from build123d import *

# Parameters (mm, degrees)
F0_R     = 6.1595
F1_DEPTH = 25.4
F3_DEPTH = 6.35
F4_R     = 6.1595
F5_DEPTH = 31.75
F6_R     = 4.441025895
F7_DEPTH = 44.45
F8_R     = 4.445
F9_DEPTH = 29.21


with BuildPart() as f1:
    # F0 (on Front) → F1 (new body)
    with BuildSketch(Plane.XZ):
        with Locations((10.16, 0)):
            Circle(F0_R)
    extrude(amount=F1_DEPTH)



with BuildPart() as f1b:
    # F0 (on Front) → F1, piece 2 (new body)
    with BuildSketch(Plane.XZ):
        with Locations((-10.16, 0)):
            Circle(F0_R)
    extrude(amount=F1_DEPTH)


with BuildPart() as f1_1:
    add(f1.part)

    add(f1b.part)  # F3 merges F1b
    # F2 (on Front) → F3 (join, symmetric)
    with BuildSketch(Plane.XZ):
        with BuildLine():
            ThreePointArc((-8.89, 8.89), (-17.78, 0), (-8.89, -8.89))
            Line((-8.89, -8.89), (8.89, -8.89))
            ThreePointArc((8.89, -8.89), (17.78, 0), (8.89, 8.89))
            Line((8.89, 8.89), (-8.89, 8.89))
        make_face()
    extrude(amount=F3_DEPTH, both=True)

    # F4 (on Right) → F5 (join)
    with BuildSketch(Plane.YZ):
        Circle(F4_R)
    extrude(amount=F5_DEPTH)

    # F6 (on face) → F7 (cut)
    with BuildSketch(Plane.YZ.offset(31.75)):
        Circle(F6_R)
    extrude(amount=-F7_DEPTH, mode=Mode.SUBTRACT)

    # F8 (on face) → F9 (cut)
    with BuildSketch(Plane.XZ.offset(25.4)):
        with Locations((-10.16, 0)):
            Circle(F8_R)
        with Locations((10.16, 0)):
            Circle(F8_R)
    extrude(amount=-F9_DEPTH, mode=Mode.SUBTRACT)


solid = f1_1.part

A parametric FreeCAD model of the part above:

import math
import FreeCAD as App
import Part
import Sketcher

V = App.Vector
Q = App.Units.Quantity

doc = App.newDocument("Part")
params = doc.addObject("Spreadsheet::Sheet", "Params")
for row, (alias, value) in enumerate([
    ("sketch1_diameter", "0.485 in"),
    ("pad1_length", "1 in"),
    ("sketch2_diameter", "0.485 in"),
    ("pad2_length", "1 in"),
    ("sketch3_radius", "0.35 in"),
    ("sketch3_width", "0.7 in"),
    ("pad3_length", "0.5 in"),
    ("sketch4_diameter", "0.485 in"),
    ("pad4_length", "1.25 in"),
    ("pocket1_length", "1.75 in"),
    ("sketch6_diameter", "0.35 in"),
    ("pocket2_length", "1.15 in"),
], start=1):
    params.set(f"A{row}", alias)
    params.set(f"B{row}", "=" + value)
    params.setAlias(f"B{row}", alias)

body = doc.addObject("PartDesign::Body", "Body")

sketch1 = body.newObject("Sketcher::SketchObject", "Sketch")
sketch1.AttachmentSupport = (doc.getObject("XZ_Plane"), [""])
sketch1.MapMode = "FlatFace"
sketch1.addGeometry(Part.Circle(V(10, 0, 0), V(0, 0, 1), 6), False)
sketch1.addConstraint([
    Sketcher.Constraint("PointOnObject", 0, 3, -1),
    Sketcher.Constraint("Diameter", 0, Q("0.485 in")),
    Sketcher.Constraint("DistanceX", -1, 1, 0, 3, Q("0.4 in")),
])
sketch1.setExpression("Constraints[1]", "Params.sketch1_diameter")
pad1 = body.newObject("PartDesign::Pad", "Pad")
pad1.Profile = sketch1
pad1.setExpression("Length", "Params.pad1_length")
body2 = doc.addObject("PartDesign::Body", "Body001")

sketch2 = body2.newObject("Sketcher::SketchObject", "Sketch001")
sketch2.AttachmentSupport = (doc.getObject("XZ_Plane001"), [""])
sketch2.MapMode = "FlatFace"
sketch2.addGeometry(Part.Circle(V(-10, 0, 0), V(0, 0, 1), 6), False)
sketch2.addConstraint([
    Sketcher.Constraint("PointOnObject", 0, 3, -1),
    Sketcher.Constraint("Diameter", 0, Q("0.485 in")),
    Sketcher.Constraint("DistanceX", 0, 3, -1, 1, Q("0.4 in")),
])
sketch2.setExpression("Constraints[1]", "Params.sketch2_diameter")
pad2 = body2.newObject("PartDesign::Pad", "Pad001")
pad2.Profile = sketch2
pad2.setExpression("Length", "Params.pad2_length")
body.AllowCompound = True
doc.recompute()

boolean = body.newObject("PartDesign::Boolean", "Boolean")
boolean.Type = "Fuse"
boolean.addObjects([body2])

sketch3 = body.newObject("Sketcher::SketchObject", "Sketch002")
sketch3.AttachmentSupport = (doc.getObject("XZ_Plane"), [""])
sketch3.MapMode = "FlatFace"
sketch3.addGeometry([
    Part.ArcOfCircle(Part.Circle(V(-9, 0, 0), V(0, 0, 1), 9), math.radians(90), math.radians(270)),
    Part.LineSegment(V(-9, -9, 0), V(9, -9, 0)),
    Part.ArcOfCircle(Part.Circle(V(9, 0, 0), V(0, 0, 1), 9), math.radians(-90), math.radians(90)),
    Part.LineSegment(V(9, 9, 0), V(-9, 9, 0)),
], False)
sketch3.addConstraint([
    Sketcher.Constraint("Tangent", 0, 2, 1, 1),
    Sketcher.Constraint("Tangent", 1, 2, 2, 1),
    Sketcher.Constraint("Tangent", 2, 2, 3, 1),
    Sketcher.Constraint("Tangent", 3, 2, 0, 1),
    Sketcher.Constraint("Horizontal", 1),
    Sketcher.Constraint("Horizontal", 3),
    Sketcher.Constraint("Symmetric", 0, 3, 2, 3, -1, 1),
    Sketcher.Constraint("Radius", 0, Q("0.35 in")),
    Sketcher.Constraint("DistanceX", 1, 1, 1, 2, Q("0.7 in")),
])
sketch3.setExpression("Constraints[7]", "Params.sketch3_radius")
sketch3.setExpression("Constraints[8]", "Params.sketch3_width")
pad3 = body.newObject("PartDesign::Pad", "Pad002")
pad3.Profile = sketch3
pad3.setExpression("Length", "Params.pad3_length")
pad3.Midplane = True

sketch4 = body.newObject("Sketcher::SketchObject", "Sketch003")
sketch4.AttachmentSupport = (doc.getObject("YZ_Plane"), [""])
sketch4.MapMode = "FlatFace"
sketch4.addGeometry(Part.Circle(V(0, 0, 0), V(0, 0, 1), 6), False)
sketch4.addConstraint([
    Sketcher.Constraint("Coincident", 0, 3, -1, 1),
    Sketcher.Constraint("Diameter", 0, Q("0.485 in")),
])
sketch4.setExpression("Constraints[1]", "Params.sketch4_diameter")
pad4 = body.newObject("PartDesign::Pad", "Pad003")
pad4.Profile = sketch4
pad4.setExpression("Length", "Params.pad4_length")

sketch5 = body.newObject("Sketcher::SketchObject", "Sketch004")
sketch5.AttachmentSupport = (doc.getObject("YZ_Plane"), [""])
sketch5.MapMode = "FlatFace"
sketch5.AttachmentOffset = App.Placement(V(0, 0, 1.25 * 25.4), App.Rotation())
sketch5.addGeometry(Part.Circle(V(0, 0, 0), V(0, 0, 1), 4.4), False)
sketch5.addConstraint([
    Sketcher.Constraint("Coincident", 0, 3, -1, 1),
    Sketcher.Constraint("Diameter", 0, 8.882052),
])
pocket1 = body.newObject("PartDesign::Pocket", "Pocket")
pocket1.Profile = sketch5
pocket1.setExpression("Length", "Params.pocket1_length")

sketch6 = body.newObject("Sketcher::SketchObject", "Sketch005")
sketch6.AttachmentSupport = (doc.getObject("XZ_Plane"), [""])
sketch6.MapMode = "FlatFace"
sketch6.AttachmentOffset = App.Placement(V(0, 0, 1 * 25.4), App.Rotation())
sketch6.addGeometry([
    Part.Circle(V(-10.2, 0, 0), V(0, 0, 1), 4.4),
    Part.Circle(V(10.2, 0, 0), V(0, 0, 1), 4.4),
], False)
sketch6.addConstraint([
    Sketcher.Constraint("Equal", 0, 1),
    Sketcher.Constraint("Symmetric", 0, 3, 1, 3, -1, 1),
    Sketcher.Constraint("PointOnObject", 0, 3, -1),
    Sketcher.Constraint("Diameter", 0, Q("0.35 in")),
    Sketcher.Constraint("DistanceX", 0, 3, -1, 1, Q("0.4 in")),
])
sketch6.setExpression("Constraints[3]", "Params.sketch6_diameter")
pocket2 = body.newObject("PartDesign::Pocket", "Pocket001")
pocket2.Profile = sketch6
pocket2.setExpression("Length", "Params.pocket2_length")

doc.recompute()
